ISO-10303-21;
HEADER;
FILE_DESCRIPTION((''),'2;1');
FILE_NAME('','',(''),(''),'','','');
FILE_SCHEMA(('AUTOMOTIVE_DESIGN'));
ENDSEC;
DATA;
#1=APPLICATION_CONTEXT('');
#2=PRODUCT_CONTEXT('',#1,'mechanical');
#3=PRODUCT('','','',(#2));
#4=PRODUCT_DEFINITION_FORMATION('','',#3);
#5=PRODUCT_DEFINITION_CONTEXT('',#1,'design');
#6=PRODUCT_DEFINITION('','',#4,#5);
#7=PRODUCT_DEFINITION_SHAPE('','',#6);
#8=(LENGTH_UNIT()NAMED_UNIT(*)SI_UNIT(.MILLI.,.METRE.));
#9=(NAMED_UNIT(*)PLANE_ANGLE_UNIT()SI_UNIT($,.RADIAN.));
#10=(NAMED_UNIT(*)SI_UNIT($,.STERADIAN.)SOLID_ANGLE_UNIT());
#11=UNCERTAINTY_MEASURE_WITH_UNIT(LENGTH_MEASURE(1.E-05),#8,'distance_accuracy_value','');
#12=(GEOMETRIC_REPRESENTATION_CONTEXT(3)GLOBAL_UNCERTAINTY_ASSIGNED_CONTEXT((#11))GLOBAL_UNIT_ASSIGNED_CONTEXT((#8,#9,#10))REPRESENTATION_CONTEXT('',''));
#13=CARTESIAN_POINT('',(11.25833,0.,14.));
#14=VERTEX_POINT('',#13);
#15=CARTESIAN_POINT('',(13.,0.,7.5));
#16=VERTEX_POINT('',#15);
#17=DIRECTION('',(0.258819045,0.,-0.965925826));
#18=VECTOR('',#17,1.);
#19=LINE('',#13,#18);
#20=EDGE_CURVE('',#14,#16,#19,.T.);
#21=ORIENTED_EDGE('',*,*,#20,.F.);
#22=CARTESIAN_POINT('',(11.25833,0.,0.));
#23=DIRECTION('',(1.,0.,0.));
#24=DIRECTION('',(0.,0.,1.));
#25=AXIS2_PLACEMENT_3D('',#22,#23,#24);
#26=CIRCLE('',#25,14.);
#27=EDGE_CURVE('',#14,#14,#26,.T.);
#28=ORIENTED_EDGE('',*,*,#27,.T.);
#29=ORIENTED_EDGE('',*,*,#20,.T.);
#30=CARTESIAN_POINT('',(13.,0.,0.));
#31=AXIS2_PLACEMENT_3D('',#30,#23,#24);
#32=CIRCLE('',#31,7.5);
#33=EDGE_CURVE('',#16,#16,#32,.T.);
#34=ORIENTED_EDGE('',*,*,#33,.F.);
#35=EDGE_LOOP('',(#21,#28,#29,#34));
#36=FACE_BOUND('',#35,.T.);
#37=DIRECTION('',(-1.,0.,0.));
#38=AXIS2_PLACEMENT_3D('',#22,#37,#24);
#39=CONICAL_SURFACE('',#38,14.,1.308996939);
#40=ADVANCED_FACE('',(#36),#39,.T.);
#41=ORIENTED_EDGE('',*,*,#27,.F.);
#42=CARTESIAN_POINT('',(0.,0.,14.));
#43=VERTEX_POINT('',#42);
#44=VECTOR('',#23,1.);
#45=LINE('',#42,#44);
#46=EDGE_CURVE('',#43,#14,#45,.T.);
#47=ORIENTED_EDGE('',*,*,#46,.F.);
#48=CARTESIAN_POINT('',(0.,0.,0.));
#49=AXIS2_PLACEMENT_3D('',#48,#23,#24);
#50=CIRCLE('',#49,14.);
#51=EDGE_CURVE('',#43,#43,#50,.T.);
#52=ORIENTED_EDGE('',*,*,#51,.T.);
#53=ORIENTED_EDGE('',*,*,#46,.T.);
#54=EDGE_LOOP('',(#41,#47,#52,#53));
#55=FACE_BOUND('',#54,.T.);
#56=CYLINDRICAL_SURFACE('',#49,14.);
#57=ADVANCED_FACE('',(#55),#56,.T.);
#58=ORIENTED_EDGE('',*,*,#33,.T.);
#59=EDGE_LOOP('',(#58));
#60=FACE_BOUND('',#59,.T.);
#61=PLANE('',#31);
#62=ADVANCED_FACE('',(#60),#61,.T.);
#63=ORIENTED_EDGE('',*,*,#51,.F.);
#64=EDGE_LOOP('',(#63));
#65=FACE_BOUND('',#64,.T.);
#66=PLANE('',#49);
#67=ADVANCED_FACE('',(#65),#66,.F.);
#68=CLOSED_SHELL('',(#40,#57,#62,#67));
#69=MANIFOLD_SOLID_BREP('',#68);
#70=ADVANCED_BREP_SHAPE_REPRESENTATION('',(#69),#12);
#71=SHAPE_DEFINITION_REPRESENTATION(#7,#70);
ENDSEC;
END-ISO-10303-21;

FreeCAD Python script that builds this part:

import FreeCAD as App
import Part
import Sketcher
Q = App.Units.Quantity

doc = App.newDocument("Part")
params = doc.addObject("Spreadsheet::Sheet", "Params")
for row, (alias, value) in enumerate([
    ("sketch1_width", "13 mm"),
    ("sketch1_height", "14 mm"),
    ("sketch1_height2", "7.5 mm"),
    ("revolution_angle", "360 deg"),
], start=1):
    params.set(f"A{row}", alias)
    params.set(f"B{row}", "=" + value)
    params.setAlias(f"B{row}", alias)

body = doc.addObject("PartDesign::Body", "Body")

# Sketch on XY plane
sketch1 = doc.addObject("Sketcher::SketchObject", "Sketch")
body.addObject(sketch1)
sketch1.AttachmentSupport = (doc.XY_Plane, [""])
sketch1.MapMode = "FlatFace"
sketch1.addGeometry(Part.LineSegment(App.Vector(0, 0, 0), App.Vector(0, -14, 0)), False)
sketch1.addGeometry(Part.LineSegment(App.Vector(0, -14, 0), App.Vector(11.25833, -14, 0)), False)
sketch1.addGeometry(Part.LineSegment(App.Vector(11.25833, -14, 0), App.Vector(13, -7.5, 0)), False)
sketch1.addGeometry(Part.LineSegment(App.Vector(13, -7.5, 0), App.Vector(13, 0, 0)), False)
sketch1.addGeometry(Part.LineSegment(App.Vector(13, 0, 0), App.Vector(0, 0, 0)), False)
sketch1.addConstraint(Sketcher.Constraint("Coincident", 0, 2, 1, 1))
sketch1.addConstraint(Sketcher.Constraint("Coincident", 1, 2, 2, 1))
sketch1.addConstraint(Sketcher.Constraint("Coincident", 2, 2, 3, 1))
sketch1.addConstraint(Sketcher.Constraint("Coincident", 3, 2, 4, 1))
sketch1.addConstraint(Sketcher.Constraint("Coincident", 4, 2, 0, 1))
sketch1.addConstraint(Sketcher.Constraint("Vertical", 0))
sketch1.addConstraint(Sketcher.Constraint("Horizontal", 1))
sketch1.addConstraint(Sketcher.Constraint("Vertical", 3))
sketch1.addConstraint(Sketcher.Constraint("Horizontal", 4))
sketch1.addConstraint(Sketcher.Constraint("Coincident", 4, 2, -1, 1))
sketch1.addConstraint(Sketcher.Constraint("DistanceX", 4, 2, 4, 1, 13.0))
sketch1.addConstraint(Sketcher.Constraint("DistanceY", 0, 2, 0, 1, 14.0))
sketch1.addConstraint(Sketcher.Constraint("Angle", 2, Q("75 deg")))
sketch1.addConstraint(Sketcher.Constraint("DistanceY", 3, 1, 3, 2, 7.5))
sketch1.setExpression("Constraints[10]", "Params.sketch1_width")
sketch1.setExpression("Constraints[11]", "Params.sketch1_height")
sketch1.setExpression("Constraints[13]", "Params.sketch1_height2")
revolution = doc.addObject("PartDesign::Revolution", "Revolution")
body.addObject(revolution)
revolution.Profile = sketch1
revolution.ReferenceAxis = (sketch1, ["H_Axis"])
revolution.setExpression("Angle", "Params.revolution_angle")

doc.recompute()
